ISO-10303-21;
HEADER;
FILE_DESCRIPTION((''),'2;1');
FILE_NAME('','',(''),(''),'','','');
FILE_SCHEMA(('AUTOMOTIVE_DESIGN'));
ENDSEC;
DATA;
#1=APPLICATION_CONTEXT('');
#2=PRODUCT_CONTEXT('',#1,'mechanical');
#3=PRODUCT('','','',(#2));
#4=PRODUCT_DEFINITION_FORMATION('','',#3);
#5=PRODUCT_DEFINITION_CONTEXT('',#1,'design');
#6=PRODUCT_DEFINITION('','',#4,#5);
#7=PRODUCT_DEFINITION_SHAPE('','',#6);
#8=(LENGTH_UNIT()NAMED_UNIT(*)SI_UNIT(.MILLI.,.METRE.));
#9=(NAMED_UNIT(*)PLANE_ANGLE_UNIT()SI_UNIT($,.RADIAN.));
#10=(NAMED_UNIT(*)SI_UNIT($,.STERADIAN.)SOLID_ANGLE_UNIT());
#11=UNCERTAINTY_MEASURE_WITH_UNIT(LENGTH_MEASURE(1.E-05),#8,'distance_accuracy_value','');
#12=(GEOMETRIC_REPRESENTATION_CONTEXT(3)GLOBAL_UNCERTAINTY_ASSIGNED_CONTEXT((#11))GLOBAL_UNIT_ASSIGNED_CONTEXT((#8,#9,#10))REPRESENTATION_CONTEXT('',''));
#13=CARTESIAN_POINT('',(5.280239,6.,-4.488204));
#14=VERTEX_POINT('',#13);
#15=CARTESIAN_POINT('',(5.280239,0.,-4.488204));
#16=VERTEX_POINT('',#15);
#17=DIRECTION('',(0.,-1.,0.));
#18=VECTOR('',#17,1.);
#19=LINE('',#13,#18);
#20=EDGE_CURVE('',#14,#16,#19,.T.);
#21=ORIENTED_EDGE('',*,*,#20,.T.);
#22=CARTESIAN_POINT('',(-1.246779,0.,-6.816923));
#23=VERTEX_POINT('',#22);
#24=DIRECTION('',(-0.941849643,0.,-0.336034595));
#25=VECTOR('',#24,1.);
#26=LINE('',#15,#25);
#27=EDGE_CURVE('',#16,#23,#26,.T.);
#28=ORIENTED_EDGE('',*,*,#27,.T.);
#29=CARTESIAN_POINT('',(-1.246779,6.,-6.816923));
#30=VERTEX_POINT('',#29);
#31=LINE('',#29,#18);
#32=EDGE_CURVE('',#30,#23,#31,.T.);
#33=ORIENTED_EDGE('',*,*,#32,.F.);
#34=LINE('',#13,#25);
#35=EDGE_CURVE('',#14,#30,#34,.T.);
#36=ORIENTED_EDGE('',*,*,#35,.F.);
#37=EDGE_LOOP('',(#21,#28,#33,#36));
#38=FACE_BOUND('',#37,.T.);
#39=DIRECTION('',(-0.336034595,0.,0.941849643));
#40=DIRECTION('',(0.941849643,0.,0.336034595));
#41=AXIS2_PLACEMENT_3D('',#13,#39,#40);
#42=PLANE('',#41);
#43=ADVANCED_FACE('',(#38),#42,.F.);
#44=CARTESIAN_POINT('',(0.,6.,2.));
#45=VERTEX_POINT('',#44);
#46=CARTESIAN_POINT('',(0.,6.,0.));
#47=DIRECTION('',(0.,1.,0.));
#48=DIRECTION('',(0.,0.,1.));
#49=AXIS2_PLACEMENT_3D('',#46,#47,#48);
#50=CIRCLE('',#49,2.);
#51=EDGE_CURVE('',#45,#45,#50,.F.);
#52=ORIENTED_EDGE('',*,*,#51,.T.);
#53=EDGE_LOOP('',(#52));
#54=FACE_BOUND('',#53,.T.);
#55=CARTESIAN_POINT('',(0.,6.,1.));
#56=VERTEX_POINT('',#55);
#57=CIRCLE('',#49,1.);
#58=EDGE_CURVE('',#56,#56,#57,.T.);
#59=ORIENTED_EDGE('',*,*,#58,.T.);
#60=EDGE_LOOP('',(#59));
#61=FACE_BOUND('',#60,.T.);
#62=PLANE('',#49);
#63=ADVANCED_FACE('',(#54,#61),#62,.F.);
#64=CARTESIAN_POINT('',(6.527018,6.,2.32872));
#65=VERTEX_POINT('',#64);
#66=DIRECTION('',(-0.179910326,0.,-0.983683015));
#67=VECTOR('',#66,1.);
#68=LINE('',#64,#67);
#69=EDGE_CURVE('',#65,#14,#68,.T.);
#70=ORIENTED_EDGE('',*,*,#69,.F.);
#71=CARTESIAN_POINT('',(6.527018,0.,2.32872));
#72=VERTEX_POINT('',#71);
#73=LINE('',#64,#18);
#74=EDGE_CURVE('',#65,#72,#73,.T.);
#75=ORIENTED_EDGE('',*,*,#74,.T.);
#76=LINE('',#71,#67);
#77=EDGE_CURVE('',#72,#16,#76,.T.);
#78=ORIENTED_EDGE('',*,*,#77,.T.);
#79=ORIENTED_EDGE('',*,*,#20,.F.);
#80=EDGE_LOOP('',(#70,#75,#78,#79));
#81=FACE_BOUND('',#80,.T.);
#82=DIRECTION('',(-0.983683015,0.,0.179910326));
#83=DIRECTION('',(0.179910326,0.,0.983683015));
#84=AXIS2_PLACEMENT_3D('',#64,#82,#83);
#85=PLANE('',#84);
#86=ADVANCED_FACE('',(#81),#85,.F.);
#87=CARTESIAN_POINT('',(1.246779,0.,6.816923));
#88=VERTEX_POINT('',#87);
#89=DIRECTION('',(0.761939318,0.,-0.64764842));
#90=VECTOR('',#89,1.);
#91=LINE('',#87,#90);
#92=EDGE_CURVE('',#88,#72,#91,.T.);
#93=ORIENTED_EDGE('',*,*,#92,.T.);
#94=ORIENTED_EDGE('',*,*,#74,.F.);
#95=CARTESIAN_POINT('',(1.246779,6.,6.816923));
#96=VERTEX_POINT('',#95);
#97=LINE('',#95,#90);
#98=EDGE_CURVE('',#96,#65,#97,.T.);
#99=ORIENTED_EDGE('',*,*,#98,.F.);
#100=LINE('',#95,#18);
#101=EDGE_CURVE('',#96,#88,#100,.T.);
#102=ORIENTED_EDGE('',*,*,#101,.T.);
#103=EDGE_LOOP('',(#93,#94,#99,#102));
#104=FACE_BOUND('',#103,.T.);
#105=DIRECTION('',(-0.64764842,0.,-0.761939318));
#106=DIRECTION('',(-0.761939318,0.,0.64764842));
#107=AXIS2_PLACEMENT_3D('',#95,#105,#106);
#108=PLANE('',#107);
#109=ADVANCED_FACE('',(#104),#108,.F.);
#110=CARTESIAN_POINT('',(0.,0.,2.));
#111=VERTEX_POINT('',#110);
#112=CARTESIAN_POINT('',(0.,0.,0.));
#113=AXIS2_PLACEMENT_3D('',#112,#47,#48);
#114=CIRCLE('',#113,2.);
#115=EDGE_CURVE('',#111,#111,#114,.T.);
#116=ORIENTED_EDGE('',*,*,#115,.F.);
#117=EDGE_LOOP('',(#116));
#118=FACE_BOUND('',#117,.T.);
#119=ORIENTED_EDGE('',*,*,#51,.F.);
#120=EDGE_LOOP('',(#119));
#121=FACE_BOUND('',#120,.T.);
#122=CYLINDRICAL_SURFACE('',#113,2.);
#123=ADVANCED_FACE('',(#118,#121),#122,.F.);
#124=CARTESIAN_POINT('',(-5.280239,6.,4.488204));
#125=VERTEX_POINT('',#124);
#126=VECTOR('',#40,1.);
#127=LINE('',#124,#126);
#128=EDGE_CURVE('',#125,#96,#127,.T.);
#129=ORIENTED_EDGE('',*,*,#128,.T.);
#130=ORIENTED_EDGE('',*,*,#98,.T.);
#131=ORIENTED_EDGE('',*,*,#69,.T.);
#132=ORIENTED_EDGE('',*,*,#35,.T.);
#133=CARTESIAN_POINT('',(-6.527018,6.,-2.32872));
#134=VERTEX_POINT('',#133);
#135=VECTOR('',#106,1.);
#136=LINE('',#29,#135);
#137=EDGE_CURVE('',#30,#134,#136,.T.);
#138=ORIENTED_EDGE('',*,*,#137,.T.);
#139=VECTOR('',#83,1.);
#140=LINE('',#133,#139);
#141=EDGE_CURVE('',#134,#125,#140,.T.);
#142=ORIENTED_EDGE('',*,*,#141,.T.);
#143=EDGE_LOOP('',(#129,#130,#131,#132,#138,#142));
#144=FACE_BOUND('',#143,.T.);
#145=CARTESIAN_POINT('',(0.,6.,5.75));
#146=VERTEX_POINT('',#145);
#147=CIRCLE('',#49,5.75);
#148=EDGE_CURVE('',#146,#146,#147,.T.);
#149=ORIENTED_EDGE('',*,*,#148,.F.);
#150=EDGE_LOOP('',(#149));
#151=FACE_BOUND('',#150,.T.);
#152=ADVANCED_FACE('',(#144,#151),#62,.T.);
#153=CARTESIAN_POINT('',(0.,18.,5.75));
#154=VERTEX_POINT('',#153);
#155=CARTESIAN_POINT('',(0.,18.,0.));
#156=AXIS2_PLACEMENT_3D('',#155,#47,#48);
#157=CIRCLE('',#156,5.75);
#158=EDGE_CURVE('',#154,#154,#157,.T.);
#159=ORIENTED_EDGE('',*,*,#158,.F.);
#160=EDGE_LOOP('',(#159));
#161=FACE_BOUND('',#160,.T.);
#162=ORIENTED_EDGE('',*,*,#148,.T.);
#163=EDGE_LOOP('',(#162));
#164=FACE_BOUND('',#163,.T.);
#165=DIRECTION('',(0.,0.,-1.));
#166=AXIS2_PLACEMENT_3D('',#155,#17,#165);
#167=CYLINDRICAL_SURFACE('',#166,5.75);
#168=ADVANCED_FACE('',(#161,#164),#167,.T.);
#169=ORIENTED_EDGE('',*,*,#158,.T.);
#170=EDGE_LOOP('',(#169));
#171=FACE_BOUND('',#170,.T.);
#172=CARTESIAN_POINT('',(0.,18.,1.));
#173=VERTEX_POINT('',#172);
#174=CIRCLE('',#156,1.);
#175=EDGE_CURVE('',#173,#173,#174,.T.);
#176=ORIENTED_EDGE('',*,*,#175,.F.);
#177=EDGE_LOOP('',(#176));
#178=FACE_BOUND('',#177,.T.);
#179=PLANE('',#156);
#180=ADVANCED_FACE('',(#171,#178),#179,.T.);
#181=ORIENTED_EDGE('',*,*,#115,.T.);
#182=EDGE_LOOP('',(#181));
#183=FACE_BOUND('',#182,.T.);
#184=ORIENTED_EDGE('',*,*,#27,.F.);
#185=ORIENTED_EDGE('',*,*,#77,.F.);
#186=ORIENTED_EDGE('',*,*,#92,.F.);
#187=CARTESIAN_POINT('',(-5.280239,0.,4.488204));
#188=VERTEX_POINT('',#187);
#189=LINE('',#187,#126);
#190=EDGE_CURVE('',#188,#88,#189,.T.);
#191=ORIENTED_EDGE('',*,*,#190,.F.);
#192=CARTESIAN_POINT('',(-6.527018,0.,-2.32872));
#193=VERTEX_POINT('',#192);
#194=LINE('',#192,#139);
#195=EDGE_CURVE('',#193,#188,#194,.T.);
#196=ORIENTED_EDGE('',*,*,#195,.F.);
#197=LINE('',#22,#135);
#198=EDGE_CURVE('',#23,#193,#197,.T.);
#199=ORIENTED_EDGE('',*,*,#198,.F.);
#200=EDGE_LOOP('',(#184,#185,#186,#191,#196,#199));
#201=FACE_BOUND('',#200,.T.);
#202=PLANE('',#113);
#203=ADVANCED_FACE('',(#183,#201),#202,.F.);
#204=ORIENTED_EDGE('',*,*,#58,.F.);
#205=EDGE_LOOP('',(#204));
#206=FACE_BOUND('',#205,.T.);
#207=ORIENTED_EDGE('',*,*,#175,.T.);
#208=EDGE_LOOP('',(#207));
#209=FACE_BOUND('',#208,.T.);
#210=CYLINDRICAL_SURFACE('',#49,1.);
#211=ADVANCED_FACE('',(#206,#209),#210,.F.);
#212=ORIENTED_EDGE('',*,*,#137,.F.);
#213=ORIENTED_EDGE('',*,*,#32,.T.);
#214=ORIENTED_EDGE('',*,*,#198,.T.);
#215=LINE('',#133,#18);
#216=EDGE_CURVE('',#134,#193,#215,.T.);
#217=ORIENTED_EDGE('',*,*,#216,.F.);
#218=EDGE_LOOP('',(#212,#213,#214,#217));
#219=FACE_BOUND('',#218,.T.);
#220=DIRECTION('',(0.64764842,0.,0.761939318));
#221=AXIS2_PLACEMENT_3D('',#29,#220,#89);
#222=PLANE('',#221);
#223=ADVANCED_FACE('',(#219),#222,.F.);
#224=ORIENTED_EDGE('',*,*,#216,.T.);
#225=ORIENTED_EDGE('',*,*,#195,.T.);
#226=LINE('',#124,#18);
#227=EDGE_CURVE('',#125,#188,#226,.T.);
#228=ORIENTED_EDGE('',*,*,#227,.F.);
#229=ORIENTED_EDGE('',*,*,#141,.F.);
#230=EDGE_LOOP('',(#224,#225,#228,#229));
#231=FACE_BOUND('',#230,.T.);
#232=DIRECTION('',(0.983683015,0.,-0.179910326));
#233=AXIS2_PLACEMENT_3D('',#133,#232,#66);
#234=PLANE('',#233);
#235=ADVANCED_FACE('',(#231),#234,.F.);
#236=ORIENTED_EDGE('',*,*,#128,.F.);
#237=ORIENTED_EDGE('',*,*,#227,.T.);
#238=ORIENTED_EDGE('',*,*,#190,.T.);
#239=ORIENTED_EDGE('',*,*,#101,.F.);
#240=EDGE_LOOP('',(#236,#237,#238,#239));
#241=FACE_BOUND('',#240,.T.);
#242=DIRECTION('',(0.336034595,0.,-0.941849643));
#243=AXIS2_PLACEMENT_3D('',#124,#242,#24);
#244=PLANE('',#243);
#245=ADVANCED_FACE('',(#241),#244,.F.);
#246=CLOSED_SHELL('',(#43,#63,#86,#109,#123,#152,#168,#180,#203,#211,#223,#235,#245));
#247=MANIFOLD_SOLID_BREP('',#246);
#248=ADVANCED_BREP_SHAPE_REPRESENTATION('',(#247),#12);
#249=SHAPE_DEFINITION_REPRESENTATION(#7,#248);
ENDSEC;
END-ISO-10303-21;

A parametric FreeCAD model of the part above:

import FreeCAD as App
import Part
import Sketcher

V = App.Vector
Q = App.Units.Quantity


def add_polygon(sketch, points):
    """Adds a closed chain of lines whose ends are joined by coincident constraints."""
    first, n = sketch.GeometryCount, len(points)
    for a, b in zip(points, points[1:] + points[:1]):
        sketch.addGeometry(Part.LineSegment(App.Vector(*a, 0), App.Vector(*b, 0)), False)
    for i in range(n):
        sketch.addConstraint(Sketcher.Constraint("Coincident", first + i, 2, first + (i + 1) % n, 1))

doc = App.newDocument("Part")
body = doc.addObject("PartDesign::Body", "Body")

# Sketch on XZ plane
sketch1 = body.newObject("Sketcher::SketchObject", "Sketch")
sketch1.AttachmentSupport = (doc.getObject("XZ_Plane"), [""])
sketch1.MapMode = "FlatFace"
add_polygon(sketch1, [(5, -4), (-1, -7), (-7, -2), (-5, 4), (1, 7), (7, 2)])  # lines 0-5
sketch1.addConstraint(Sketcher.Constraint("Symmetric", 0, 2, 3, 2, -1, 1))
sketch1.addConstraint(Sketcher.Constraint("Symmetric", 1, 2, 4, 2, -1, 1))
sketch1.addConstraint(Sketcher.Constraint("Symmetric", 2, 2, 5, 2, -1, 1))
sketch1.addConstraint(Sketcher.Constraint("Equal", 0, 1))
sketch1.addConstraint(Sketcher.Constraint("Equal", 1, 2))
sketch1.addConstraint(Sketcher.Constraint("Distance", 0, Q("6.93 mm")))
sketch1.addConstraint(Sketcher.Constraint("DistanceX", 0, 2, -1, 1, Q("1.246779 mm")))
sketch1.addConstraint(Sketcher.Constraint("DistanceX", 1, 2, -1, 1, Q("6.527018 mm")))
sketch1.addConstraint(Sketcher.Constraint("DistanceY", 1, 2, -1, 1, Q("2.32872 mm")))
pad1 = body.newObject("PartDesign::Pad", "Pad")
pad1.Profile = sketch1
pad1.Length = 6
pad1.Reversed = True

# Sketch on XZ plane
sketch2 = body.newObject("Sketcher::SketchObject", "Sketch001")
sketch2.AttachmentSupport = (doc.getObject("XZ_Plane"), [""])
sketch2.MapMode = "FlatFace"
sketch2.AttachmentOffset = App.Placement(V(0, 0, -6), App.Rotation())
sketch2.addGeometry(Part.Circle(V(0, 0, 0), V(0, 0, 1), 2), False)
sketch2.addConstraint(Sketcher.Constraint("Coincident", 0, 3, -1, 1))
sketch2.addConstraint(Sketcher.Constraint("Diameter", 0, Q("4 mm")))
pocket1 = body.newObject("PartDesign::Pocket", "Pocket")
pocket1.Profile = sketch2
pocket1.Length = 6
pocket1.Reversed = True

# Sketch on XZ plane
sketch3 = body.newObject("Sketcher::SketchObject", "Sketch002")
sketch3.AttachmentSupport = (doc.getObject("XZ_Plane"), [""])
sketch3.MapMode = "FlatFace"
sketch3.AttachmentOffset = App.Placement(V(0, 0, -6), App.Rotation())
sketch3.addGeometry(Part.Circle(V(0, 0, 0), V(0, 0, 1), 6), False)
sketch3.addConstraint(Sketcher.Constraint("Coincident", 0, 3, -1, 1))
sketch3.addConstraint(Sketcher.Constraint("Diameter", 0, Q("11.5 mm")))
pad2 = body.newObject("PartDesign::Pad", "Pad001")
pad2.Profile = sketch3
pad2.Length = 12
pad2.Reversed = True

# Sketch on XZ plane
sketch4 = body.newObject("Sketcher::SketchObject", "Sketch003")
sketch4.AttachmentSupport = (doc.getObject("XZ_Plane"), [""])
sketch4.MapMode = "FlatFace"
sketch4.AttachmentOffset = App.Placement(V(0, 0, -18), App.Rotation())
sketch4.addGeometry(Part.Circle(V(0, 0, 0), V(0, 0, 1), 1), False)
sketch4.addConstraint(Sketcher.Constraint("Coincident", 0, 3, -1, 1))
sketch4.addConstraint(Sketcher.Constraint("Diameter", 0, Q("2 mm")))
pocket2 = body.newObject("PartDesign::Pocket", "Pocket001")
pocket2.Profile = sketch4
pocket2.Length = 12
pocket2.Reversed = True

doc.recompute()
